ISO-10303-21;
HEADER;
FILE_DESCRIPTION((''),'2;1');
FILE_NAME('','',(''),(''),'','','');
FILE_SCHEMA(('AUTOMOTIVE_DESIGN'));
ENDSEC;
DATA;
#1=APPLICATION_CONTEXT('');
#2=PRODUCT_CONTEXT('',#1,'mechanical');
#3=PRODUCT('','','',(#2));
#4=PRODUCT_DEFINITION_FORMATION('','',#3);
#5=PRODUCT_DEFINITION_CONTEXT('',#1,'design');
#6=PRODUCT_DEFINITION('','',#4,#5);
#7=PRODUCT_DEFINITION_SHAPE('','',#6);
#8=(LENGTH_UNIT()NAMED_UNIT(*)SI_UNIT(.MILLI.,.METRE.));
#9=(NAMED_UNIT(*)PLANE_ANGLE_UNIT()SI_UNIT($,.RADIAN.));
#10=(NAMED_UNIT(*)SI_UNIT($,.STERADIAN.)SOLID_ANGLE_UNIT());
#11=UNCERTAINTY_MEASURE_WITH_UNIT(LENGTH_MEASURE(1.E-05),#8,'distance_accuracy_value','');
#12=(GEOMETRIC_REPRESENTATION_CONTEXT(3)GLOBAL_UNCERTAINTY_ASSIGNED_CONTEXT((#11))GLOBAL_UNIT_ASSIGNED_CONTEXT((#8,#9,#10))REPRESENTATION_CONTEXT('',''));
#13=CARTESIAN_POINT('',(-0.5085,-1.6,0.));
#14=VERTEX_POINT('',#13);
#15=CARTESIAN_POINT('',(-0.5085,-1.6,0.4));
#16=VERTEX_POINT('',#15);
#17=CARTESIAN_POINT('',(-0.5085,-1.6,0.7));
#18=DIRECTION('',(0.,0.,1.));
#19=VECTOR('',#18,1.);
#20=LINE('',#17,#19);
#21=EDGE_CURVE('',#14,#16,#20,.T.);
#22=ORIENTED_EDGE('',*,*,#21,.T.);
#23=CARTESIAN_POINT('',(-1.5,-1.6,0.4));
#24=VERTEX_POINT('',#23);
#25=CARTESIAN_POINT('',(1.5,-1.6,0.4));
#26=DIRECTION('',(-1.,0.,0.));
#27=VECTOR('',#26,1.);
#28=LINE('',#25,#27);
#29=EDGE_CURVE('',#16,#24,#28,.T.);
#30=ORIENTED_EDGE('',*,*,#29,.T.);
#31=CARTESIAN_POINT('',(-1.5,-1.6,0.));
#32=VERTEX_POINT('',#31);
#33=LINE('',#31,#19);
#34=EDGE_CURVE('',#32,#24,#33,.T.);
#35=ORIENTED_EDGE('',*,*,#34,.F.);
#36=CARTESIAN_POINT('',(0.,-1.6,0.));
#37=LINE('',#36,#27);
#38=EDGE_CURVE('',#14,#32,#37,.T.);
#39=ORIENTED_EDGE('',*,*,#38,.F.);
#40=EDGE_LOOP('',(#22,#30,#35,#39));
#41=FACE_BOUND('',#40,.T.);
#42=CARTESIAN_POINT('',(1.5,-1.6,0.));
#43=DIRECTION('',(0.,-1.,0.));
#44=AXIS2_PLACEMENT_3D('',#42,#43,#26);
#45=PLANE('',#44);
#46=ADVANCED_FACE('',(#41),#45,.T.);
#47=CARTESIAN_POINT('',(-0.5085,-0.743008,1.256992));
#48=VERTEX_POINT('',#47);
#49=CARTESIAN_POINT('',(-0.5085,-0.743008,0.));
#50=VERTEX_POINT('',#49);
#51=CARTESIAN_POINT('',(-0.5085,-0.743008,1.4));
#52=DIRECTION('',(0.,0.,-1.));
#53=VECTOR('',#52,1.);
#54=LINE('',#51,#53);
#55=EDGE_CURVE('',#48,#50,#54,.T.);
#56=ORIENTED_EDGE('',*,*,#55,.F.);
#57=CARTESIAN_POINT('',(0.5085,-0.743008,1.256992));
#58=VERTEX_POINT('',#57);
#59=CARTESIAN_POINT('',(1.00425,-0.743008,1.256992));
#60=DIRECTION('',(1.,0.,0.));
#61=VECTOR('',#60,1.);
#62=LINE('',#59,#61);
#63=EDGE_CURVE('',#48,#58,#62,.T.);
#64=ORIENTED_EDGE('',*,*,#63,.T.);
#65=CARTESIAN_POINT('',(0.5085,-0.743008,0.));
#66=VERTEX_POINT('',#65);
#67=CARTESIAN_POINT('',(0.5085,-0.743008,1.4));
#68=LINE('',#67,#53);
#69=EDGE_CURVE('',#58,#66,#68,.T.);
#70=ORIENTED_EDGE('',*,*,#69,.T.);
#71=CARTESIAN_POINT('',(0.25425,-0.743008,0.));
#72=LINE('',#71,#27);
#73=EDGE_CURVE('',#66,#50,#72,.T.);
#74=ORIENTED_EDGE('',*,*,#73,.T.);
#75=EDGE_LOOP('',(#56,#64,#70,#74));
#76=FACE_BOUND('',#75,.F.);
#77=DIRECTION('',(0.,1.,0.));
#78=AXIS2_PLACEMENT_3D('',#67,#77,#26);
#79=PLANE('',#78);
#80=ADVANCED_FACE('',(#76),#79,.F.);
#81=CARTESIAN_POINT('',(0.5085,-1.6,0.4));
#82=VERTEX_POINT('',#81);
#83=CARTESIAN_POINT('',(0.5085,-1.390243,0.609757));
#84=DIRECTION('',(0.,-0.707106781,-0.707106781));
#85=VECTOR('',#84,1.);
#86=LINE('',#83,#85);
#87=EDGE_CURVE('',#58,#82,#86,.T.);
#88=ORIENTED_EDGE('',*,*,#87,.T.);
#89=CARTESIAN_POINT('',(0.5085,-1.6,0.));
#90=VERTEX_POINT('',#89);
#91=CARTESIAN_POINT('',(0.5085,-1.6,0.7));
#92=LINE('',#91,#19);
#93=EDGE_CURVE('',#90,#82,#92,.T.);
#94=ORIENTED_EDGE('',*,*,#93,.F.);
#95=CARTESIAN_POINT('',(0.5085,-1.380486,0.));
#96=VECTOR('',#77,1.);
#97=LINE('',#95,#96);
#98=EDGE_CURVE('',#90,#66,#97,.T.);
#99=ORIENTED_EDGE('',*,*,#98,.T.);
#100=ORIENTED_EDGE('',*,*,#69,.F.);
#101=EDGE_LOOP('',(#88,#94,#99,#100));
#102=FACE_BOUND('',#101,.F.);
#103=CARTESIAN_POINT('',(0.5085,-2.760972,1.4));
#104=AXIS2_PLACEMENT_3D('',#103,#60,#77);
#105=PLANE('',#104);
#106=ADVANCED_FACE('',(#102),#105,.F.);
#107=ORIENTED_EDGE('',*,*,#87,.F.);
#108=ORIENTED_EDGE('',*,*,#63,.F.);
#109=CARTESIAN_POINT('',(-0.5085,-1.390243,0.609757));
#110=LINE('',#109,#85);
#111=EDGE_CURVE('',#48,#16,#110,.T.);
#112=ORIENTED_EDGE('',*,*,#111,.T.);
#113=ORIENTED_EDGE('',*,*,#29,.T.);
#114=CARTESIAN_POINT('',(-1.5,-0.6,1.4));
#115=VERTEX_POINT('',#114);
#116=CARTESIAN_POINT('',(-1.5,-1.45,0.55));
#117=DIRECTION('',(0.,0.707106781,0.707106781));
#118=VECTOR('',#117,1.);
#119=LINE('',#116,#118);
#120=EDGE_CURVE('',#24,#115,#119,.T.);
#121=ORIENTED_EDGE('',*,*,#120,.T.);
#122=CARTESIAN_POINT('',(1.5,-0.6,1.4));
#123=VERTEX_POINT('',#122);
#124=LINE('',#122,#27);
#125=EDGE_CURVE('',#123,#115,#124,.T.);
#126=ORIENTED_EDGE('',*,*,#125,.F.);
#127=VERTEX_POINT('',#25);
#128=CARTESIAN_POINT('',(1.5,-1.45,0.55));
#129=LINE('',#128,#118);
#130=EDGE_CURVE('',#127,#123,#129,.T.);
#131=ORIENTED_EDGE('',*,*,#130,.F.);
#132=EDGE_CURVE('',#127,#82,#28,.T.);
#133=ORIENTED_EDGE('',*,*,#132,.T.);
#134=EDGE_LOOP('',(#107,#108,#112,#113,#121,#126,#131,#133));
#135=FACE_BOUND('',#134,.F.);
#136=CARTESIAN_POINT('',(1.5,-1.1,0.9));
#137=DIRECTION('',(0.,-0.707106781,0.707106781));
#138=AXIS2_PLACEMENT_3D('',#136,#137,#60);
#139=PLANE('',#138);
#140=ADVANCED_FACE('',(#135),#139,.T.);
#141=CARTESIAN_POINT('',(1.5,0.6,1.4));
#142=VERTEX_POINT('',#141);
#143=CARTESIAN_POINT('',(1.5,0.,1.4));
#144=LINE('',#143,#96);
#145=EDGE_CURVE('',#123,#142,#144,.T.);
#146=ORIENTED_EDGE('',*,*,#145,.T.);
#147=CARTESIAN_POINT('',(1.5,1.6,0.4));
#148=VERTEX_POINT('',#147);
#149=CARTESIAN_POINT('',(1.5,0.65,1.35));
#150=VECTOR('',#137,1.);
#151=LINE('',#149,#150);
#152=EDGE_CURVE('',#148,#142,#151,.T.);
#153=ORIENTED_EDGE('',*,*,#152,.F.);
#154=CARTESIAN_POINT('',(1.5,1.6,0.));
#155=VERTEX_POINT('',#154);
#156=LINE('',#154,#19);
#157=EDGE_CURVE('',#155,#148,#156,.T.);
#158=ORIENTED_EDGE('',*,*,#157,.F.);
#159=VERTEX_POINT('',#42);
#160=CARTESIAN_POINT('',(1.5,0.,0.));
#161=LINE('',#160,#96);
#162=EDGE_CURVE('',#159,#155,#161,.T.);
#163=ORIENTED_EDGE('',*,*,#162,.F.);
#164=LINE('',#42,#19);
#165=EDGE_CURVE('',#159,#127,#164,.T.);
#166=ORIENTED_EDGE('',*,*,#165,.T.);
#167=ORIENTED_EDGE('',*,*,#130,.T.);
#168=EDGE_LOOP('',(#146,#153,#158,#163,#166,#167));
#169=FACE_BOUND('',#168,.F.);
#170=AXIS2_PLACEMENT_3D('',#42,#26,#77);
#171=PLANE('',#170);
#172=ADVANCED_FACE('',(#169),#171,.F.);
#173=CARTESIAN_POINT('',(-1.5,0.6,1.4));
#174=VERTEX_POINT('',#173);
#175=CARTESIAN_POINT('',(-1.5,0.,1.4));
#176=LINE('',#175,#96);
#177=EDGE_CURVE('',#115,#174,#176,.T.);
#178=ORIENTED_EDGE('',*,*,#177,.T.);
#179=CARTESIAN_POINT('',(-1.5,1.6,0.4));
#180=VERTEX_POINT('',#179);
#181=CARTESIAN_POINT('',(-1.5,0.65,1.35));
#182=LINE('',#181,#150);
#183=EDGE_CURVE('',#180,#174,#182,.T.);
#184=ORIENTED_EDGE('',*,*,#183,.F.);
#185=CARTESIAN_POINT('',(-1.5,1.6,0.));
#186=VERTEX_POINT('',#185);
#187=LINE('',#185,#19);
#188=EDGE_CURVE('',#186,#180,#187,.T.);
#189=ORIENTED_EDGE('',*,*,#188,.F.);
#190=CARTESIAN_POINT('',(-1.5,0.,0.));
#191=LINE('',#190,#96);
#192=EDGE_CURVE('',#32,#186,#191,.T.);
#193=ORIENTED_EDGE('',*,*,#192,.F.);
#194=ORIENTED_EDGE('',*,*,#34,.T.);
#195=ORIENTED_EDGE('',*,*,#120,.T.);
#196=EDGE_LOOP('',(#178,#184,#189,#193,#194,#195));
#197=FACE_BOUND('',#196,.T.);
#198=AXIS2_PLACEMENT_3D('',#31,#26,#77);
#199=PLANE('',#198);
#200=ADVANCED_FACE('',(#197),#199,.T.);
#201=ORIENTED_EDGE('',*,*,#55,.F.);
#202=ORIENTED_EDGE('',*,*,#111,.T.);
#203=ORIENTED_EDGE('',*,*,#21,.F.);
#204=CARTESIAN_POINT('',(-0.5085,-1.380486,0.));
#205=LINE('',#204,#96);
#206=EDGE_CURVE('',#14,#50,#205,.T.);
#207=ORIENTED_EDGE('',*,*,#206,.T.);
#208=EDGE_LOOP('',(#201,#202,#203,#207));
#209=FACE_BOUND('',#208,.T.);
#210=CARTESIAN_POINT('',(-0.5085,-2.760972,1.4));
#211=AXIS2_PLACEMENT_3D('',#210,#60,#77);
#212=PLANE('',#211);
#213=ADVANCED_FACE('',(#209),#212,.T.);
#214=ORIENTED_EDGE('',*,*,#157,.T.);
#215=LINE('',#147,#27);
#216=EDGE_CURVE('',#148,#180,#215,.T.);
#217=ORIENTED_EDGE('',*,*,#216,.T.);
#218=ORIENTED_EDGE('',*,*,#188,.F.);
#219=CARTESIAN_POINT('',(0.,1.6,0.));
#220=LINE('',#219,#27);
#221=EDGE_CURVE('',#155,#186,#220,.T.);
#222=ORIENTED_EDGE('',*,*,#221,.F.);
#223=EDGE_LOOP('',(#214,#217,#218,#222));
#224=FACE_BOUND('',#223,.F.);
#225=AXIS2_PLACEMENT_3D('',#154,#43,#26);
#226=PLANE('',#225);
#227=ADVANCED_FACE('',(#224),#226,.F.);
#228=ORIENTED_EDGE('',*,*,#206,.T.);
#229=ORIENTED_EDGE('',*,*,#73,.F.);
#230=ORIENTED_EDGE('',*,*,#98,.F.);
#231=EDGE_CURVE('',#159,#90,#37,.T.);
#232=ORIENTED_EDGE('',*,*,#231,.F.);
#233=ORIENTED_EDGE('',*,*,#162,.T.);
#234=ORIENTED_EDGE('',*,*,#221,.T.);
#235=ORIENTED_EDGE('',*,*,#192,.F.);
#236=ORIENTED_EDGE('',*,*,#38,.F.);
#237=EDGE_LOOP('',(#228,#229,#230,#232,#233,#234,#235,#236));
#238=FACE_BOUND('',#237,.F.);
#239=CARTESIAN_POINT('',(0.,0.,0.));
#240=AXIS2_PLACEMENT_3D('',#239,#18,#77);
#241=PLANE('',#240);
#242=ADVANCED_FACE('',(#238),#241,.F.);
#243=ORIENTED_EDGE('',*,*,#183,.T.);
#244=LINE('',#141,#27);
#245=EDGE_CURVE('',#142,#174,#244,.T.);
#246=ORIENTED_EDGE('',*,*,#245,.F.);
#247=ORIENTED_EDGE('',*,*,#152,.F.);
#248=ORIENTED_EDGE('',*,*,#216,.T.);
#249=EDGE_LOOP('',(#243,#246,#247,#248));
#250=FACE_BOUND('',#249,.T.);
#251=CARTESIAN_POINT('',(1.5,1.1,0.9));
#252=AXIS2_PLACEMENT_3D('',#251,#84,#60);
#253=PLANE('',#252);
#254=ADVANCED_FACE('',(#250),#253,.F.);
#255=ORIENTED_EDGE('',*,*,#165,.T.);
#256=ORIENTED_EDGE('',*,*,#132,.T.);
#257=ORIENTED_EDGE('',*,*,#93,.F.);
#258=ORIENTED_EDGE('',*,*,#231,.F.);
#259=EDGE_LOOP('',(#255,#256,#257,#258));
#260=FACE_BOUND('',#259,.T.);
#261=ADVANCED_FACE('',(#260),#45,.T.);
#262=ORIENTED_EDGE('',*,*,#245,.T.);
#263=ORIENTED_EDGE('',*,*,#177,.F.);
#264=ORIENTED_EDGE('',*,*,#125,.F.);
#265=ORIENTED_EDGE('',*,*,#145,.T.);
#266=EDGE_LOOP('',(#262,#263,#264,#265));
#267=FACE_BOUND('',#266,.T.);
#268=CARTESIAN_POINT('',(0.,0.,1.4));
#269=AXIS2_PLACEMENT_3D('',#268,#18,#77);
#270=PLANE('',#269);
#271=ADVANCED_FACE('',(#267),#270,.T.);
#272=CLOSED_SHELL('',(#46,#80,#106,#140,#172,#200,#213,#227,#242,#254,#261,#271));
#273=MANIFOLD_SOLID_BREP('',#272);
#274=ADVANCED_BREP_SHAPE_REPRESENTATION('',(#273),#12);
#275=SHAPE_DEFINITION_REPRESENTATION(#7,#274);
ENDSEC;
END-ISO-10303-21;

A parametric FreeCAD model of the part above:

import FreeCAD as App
import Part
import Sketcher

V = App.Vector
Q = App.Units.Quantity


def edges_at(feature, points):
    """Names of the edges that pass closest to the given points."""
    edges = feature.Shape.Edges
    near = lambda p: min(range(len(edges)), key=lambda i: edges[i].distToShape(Part.Vertex(*p))[0])
    return sorted({f"Edge{near(p) + 1}" for p in points})

doc = App.newDocument("Part")
body = doc.addObject("PartDesign::Body", "Body")

sketch1 = doc.addObject("Sketcher::SketchObject", "Sketch")
body.addObject(sketch1)
sketch1.AttachmentSupport = (doc.XY_Plane, [""])
sketch1.MapMode = "FlatFace"
sketch1.addGeometry(Part.LineSegment(V(-1.6, 1.5, 0), V(-1.6, -1.5, 0)), False)
sketch1.addGeometry(Part.LineSegment(V(-1.6, -1.5, 0), V(1.6, -1.5, 0)), False)
sketch1.addGeometry(Part.LineSegment(V(1.6, -1.5, 0), V(1.6, 1.5, 0)), False)
sketch1.addGeometry(Part.LineSegment(V(1.6, 1.5, 0), V(-1.6, 1.5, 0)), False)
sketch1.addConstraint(Sketcher.Constraint("Coincident", 0, 2, 1, 1))
sketch1.addConstraint(Sketcher.Constraint("Coincident", 1, 2, 2, 1))
sketch1.addConstraint(Sketcher.Constraint("Coincident", 2, 2, 3, 1))
sketch1.addConstraint(Sketcher.Constraint("Coincident", 3, 2, 0, 1))
sketch1.addConstraint(Sketcher.Constraint("Vertical", 0))
sketch1.addConstraint(Sketcher.Constraint("Horizontal", 1))
sketch1.addConstraint(Sketcher.Constraint("Vertical", 2))
sketch1.addConstraint(Sketcher.Constraint("Horizontal", 3))
sketch1.addConstraint(Sketcher.Constraint("Symmetric", 0, 2, 2, 2, -1, 1))
sketch1.addConstraint(Sketcher.Constraint("DistanceY", 0, 2, 0, 1, Q("3 mm")))
sketch1.addConstraint(Sketcher.Constraint("DistanceX", 1, 1, 1, 2, Q("3.2 mm")))
pad1 = doc.addObject("PartDesign::Pad", "Pad")
body.addObject(pad1)
pad1.Profile = sketch1
pad1.Length = 1.4
doc.recompute()

chamfer = doc.addObject("PartDesign::Chamfer", "Chamfer")
body.addObject(chamfer)
chamfer.Base = (pad1, edges_at(pad1, [(-1.6, 0, 1.4), (1.6, 0, 1.4)]))
chamfer.Size = 1

sketch2 = doc.addObject("Sketcher::SketchObject", "Sketch001")
body.addObject(sketch2)
sketch2.AttachmentSupport = (doc.XY_Plane, [""])
sketch2.MapMode = "FlatFace"
sketch2.AttachmentOffset = App.Placement(V(0, 0, 1.4), App.Rotation())
sketch2.addGeometry(Part.LineSegment(V(-2.8, 0.5, 0), V(-2.8, -0.5, 0)), False)
sketch2.addGeometry(Part.LineSegment(V(-2.8, -0.5, 0), V(-0.7, -0.5, 0)), False)
sketch2.addGeometry(Part.LineSegment(V(-0.7, -0.5, 0), V(-0.7, 0.5, 0)), False)
sketch2.addGeometry(Part.LineSegment(V(-0.7, 0.5, 0), V(-2.8, 0.5, 0)), False)
sketch2.addConstraint(Sketcher.Constraint("Coincident", 0, 2, 1, 1))
sketch2.addConstraint(Sketcher.Constraint("Coincident", 1, 2, 2, 1))
sketch2.addConstraint(Sketcher.Constraint("Coincident", 2, 2, 3, 1))
sketch2.addConstraint(Sketcher.Constraint("Coincident", 3, 2, 0, 1))
sketch2.addConstraint(Sketcher.Constraint("Vertical", 0))
sketch2.addConstraint(Sketcher.Constraint("Horizontal", 1))
sketch2.addConstraint(Sketcher.Constraint("Vertical", 2))
sketch2.addConstraint(Sketcher.Constraint("Horizontal", 3))
sketch2.addConstraint(Sketcher.Constraint("DistanceY", 0, 2, 0, 1, Q("1.017 mm")))
sketch2.addConstraint(Sketcher.Constraint("DistanceY", 0, 2, -1, 1, Q("0.5085 mm")))
sketch2.addConstraint(Sketcher.Constraint("DistanceX", 1, 1, 1, 2, Q("2.017963 mm")))
sketch2.addConstraint(Sketcher.Constraint("DistanceX", 0, 2, -1, 1, Q("2.760972 mm")))
pocket1 = doc.addObject("PartDesign::Pocket", "Pocket")
body.addObject(pocket1)
pocket1.Profile = sketch2
pocket1.Length = 5
body2 = doc.addObject("PartDesign::Body", "Body001")
doc.recompute()

body.Placement = App.Placement(V(0, 0, 0), App.Rotation(V(0, 0, 1), 90))
boolean = doc.addObject("PartDesign::Boolean", "Boolean")
body2.addObject(boolean)
boolean.Type = "Fuse"
boolean.addObjects([body])

doc.recompute()
